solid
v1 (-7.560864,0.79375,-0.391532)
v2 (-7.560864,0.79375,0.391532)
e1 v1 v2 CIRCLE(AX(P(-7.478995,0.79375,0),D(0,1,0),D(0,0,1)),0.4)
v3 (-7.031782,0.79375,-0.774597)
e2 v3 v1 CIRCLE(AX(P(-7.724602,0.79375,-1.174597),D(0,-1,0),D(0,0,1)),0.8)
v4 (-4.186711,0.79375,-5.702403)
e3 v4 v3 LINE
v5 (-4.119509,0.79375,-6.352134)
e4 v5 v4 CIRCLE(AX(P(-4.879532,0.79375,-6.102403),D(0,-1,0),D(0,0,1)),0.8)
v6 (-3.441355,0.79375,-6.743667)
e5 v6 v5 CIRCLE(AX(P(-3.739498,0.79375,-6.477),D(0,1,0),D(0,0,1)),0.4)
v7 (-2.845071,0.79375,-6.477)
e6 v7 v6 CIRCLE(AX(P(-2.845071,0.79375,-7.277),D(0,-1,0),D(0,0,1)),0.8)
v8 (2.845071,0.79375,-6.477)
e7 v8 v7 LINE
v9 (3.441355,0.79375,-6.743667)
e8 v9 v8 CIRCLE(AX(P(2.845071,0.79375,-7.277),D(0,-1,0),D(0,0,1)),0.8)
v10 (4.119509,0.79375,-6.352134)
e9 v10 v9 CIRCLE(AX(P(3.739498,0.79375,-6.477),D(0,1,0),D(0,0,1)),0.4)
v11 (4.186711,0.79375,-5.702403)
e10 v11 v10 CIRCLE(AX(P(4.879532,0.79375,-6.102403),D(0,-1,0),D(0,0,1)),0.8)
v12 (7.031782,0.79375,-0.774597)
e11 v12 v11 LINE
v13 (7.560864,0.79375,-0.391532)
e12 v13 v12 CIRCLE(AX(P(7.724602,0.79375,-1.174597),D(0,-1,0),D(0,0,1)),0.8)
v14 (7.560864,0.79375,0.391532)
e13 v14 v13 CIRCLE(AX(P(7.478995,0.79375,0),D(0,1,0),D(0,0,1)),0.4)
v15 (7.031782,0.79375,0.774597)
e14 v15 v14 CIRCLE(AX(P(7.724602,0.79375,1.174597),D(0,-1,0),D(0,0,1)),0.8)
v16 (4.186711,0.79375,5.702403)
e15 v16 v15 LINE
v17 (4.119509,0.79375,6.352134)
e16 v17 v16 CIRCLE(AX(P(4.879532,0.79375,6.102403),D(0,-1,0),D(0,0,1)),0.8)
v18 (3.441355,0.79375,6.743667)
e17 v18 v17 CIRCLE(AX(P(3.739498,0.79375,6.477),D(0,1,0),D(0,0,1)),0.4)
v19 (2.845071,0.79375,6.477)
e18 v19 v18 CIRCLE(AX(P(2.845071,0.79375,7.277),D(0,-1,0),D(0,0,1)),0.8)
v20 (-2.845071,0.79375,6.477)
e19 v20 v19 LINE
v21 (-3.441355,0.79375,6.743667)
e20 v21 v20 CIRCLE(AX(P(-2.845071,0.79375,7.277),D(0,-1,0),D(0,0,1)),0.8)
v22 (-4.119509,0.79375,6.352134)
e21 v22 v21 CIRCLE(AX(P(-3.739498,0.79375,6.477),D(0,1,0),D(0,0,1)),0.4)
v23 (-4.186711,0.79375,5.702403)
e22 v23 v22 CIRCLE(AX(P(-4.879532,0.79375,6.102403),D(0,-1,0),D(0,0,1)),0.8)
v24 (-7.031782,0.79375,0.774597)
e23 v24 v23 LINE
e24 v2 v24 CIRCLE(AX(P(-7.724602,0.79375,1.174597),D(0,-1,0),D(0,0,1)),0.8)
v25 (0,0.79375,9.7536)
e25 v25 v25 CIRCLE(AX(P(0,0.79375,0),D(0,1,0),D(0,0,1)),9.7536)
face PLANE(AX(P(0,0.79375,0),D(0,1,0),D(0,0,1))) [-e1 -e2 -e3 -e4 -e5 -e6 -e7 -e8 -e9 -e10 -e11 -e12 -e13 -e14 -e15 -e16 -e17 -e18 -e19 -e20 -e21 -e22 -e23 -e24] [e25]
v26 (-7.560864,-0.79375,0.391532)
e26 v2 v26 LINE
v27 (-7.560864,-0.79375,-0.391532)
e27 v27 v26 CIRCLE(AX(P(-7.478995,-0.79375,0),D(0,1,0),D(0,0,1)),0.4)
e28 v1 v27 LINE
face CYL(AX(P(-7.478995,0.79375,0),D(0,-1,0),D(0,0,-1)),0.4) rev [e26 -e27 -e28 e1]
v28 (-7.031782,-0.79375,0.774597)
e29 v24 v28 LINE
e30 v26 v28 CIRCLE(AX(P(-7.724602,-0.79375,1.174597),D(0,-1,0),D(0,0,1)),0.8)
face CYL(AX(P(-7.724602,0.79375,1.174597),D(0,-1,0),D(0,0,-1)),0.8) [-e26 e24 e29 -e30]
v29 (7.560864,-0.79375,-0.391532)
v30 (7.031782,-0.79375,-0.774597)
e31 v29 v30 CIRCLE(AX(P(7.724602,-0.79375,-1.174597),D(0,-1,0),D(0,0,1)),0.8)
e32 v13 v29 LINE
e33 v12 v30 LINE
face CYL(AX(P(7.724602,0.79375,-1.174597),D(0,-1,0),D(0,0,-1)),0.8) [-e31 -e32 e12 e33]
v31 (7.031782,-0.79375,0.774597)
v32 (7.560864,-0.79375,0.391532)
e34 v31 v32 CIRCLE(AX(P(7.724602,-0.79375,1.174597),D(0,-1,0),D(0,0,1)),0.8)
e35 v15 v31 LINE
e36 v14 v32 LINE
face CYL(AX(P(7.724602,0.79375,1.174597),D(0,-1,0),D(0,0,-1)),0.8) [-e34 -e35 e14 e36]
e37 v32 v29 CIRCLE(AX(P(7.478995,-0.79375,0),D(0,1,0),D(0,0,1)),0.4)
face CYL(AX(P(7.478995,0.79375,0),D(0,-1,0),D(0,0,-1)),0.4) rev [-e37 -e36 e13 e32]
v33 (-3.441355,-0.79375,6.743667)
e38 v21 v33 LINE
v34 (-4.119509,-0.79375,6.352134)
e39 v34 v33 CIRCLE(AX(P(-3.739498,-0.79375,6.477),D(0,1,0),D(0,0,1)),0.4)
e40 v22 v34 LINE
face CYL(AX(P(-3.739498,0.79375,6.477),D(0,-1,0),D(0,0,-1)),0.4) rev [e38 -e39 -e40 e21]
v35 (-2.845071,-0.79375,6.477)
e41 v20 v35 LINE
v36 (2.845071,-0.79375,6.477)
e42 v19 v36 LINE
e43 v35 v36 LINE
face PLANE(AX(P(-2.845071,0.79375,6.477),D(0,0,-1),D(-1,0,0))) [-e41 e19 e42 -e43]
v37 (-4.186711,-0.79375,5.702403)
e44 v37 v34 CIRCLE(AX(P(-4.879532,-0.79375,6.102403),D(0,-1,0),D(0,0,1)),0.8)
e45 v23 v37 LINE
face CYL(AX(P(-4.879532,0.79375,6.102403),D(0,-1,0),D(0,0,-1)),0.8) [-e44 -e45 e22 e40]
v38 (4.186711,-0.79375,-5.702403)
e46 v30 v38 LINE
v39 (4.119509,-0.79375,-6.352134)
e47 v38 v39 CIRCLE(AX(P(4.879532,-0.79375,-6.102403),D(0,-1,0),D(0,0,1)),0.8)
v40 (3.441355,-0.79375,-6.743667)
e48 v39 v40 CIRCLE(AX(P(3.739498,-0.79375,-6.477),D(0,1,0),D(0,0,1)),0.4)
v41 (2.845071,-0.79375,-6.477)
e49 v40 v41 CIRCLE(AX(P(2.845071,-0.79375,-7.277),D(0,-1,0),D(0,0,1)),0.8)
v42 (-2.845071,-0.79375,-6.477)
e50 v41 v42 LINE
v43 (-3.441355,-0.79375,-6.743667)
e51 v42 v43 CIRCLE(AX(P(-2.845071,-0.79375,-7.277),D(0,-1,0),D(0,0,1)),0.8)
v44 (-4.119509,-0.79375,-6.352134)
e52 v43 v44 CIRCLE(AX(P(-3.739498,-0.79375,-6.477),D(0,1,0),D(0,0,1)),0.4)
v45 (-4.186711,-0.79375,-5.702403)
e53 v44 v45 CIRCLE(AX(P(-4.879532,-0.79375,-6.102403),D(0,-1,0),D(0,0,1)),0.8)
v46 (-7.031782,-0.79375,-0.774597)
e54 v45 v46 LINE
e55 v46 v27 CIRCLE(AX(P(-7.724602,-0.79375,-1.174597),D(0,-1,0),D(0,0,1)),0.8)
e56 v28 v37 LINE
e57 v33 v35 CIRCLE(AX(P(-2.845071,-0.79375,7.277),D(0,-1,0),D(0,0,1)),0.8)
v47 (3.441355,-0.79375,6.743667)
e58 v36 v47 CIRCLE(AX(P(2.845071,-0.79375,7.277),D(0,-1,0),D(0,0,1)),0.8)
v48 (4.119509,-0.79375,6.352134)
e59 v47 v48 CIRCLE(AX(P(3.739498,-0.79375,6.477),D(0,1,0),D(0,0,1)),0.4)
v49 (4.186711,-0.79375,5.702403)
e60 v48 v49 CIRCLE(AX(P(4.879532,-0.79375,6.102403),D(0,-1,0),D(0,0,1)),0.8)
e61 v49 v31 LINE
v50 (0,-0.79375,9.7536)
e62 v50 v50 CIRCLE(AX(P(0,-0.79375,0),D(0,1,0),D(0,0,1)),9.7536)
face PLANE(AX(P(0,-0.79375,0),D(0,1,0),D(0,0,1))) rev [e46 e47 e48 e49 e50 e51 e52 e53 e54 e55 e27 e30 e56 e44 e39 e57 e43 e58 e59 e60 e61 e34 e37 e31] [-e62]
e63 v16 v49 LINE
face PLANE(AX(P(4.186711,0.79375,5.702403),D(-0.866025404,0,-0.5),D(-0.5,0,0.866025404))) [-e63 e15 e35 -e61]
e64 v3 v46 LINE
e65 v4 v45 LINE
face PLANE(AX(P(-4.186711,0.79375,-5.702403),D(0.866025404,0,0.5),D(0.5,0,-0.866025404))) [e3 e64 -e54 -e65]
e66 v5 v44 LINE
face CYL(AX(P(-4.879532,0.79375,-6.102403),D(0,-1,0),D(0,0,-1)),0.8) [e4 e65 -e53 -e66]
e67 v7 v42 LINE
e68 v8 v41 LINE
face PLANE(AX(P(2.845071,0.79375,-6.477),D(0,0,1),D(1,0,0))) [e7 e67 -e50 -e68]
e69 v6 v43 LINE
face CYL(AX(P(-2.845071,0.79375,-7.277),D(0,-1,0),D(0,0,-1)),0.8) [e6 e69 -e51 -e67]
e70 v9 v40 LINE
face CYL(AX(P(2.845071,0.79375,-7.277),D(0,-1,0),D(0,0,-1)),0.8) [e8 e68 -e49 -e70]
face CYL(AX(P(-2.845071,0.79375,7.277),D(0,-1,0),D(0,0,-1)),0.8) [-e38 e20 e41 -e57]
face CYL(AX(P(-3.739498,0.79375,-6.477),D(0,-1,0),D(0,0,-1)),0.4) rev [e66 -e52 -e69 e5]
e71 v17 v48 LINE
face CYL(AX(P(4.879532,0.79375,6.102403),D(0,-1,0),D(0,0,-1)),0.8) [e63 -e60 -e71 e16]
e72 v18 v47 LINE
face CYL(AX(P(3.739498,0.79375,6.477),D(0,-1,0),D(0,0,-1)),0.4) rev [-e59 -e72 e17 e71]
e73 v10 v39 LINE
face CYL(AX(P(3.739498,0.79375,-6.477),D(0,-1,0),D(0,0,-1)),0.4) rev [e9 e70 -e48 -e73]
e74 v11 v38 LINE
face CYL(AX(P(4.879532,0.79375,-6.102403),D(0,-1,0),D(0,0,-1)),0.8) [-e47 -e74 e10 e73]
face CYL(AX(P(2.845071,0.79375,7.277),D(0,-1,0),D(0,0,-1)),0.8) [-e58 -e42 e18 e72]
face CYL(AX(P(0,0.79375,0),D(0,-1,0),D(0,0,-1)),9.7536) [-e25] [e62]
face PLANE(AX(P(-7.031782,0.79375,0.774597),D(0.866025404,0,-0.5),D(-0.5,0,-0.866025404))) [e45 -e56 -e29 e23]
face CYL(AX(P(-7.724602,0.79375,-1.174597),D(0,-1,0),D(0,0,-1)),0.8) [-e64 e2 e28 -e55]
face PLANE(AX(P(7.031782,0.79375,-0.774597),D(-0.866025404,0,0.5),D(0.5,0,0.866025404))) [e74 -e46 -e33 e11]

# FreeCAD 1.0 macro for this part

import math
import FreeCAD as App
import Part
import Sketcher
Q = App.Units.Quantity

doc = App.newDocument("Part")
params = doc.addObject("Spreadsheet::Sheet", "Params")
for row, (alias, value) in enumerate([
    ("sketch1_radius", "0.8 mm"),
    ("sketch1_radius2", "0.4 mm"),
    ("pad1_length", "1.5875 mm"),
], start=1):
    params.set(f"A{row}", alias)
    params.set(f"B{row}", "=" + value)
    params.setAlias(f"B{row}", alias)

body = doc.addObject("PartDesign::Body", "Body")

# Sketch on XZ plane
sketch1 = body.newObject("Sketcher::SketchObject", "Sketch")
sketch1.AttachmentSupport = (doc.getObject("XZ_Plane"), [""])
sketch1.MapMode = "FlatFace"
sketch1.addGeometry([
    Part.Circle(App.Vector(0, 0, 0), App.Vector(0, 0, 1), 9.75),  # 0
    Part.LineSegment(App.Vector(7.03, 0.77, 0), App.Vector(4.19, 5.7, 0)),  # 1
    Part.ArcOfCircle(Part.Circle(App.Vector(4.88, 6.1, 0), App.Vector(0, 0, 1), 0.8), math.radians(162), math.radians(210)),  # 2
    Part.ArcOfCircle(Part.Circle(App.Vector(3.74, 6.48, 0), App.Vector(0, 0, 1), 0.4), math.radians(-18), math.radians(138)),  # 3
    Part.ArcOfCircle(Part.Circle(App.Vector(2.85, 7.28, 0), App.Vector(0, 0, 1), 0.8), math.radians(-90), math.radians(-42)),  # 4
    Part.LineSegment(App.Vector(2.85, 6.48, 0), App.Vector(-2.85, 6.48, 0)),  # 5
    Part.ArcOfCircle(Part.Circle(App.Vector(-2.85, 7.28, 0), App.Vector(0, 0, 1), 0.8), math.radians(-138), math.radians(-90)),  # 6
    Part.ArcOfCircle(Part.Circle(App.Vector(-3.74, 6.48, 0), App.Vector(0, 0, 1), 0.4), math.radians(42), math.radians(198)),  # 7
    Part.ArcOfCircle(Part.Circle(App.Vector(-4.88, 6.1, 0), App.Vector(0, 0, 1), 0.8), math.radians(-30), math.radians(18)),  # 8
    Part.LineSegment(App.Vector(-4.19, 5.7, 0), App.Vector(-7.03, 0.77, 0)),  # 9
    Part.ArcOfCircle(Part.Circle(App.Vector(-7.72, 1.17, 0), App.Vector(0, 0, 1), 0.8), math.radians(-78), math.radians(-30)),  # 10
    Part.ArcOfCircle(Part.Circle(App.Vector(-7.48, 0, 0), App.Vector(0, 0, 1), 0.4), math.radians(102), math.radians(258)),  # 11
    Part.ArcOfCircle(Part.Circle(App.Vector(-7.72, -1.17, 0), App.Vector(0, 0, 1), 0.8), math.radians(30), math.radians(78)),  # 12
    Part.LineSegment(App.Vector(-7.03, -0.77, 0), App.Vector(-4.19, -5.7, 0)),  # 13
    Part.ArcOfCircle(Part.Circle(App.Vector(-4.88, -6.1, 0), App.Vector(0, 0, 1), 0.8), math.radians(-18), math.radians(30)),  # 14
    Part.ArcOfCircle(Part.Circle(App.Vector(-3.74, -6.48, 0), App.Vector(0, 0, 1), 0.4), math.radians(162), math.radians(318)),  # 15
    Part.ArcOfCircle(Part.Circle(App.Vector(-2.85, -7.28, 0), App.Vector(0, 0, 1), 0.8), math.radians(90), math.radians(138)),  # 16
    Part.LineSegment(App.Vector(-2.85, -6.48, 0), App.Vector(2.85, -6.48, 0)),  # 17
    Part.ArcOfCircle(Part.Circle(App.Vector(2.85, -7.28, 0), App.Vector(0, 0, 1), 0.8), math.radians(42), math.radians(90)),  # 18
    Part.ArcOfCircle(Part.Circle(App.Vector(3.74, -6.48, 0), App.Vector(0, 0, 1), 0.4), math.radians(-138), math.radians(18)),  # 19
    Part.ArcOfCircle(Part.Circle(App.Vector(4.88, -6.1, 0), App.Vector(0, 0, 1), 0.8), math.radians(150), math.radians(198)),  # 20
    Part.LineSegment(App.Vector(4.19, -5.7, 0), App.Vector(7.03, -0.77, 0)),  # 21
    Part.ArcOfCircle(Part.Circle(App.Vector(7.72, -1.17, 0), App.Vector(0, 0, 1), 0.8), math.radians(102), math.radians(150)),  # 22
    Part.ArcOfCircle(Part.Circle(App.Vector(7.48, 0, 0), App.Vector(0, 0, 1), 0.4), math.radians(-78), math.radians(78)),  # 23
    Part.ArcOfCircle(Part.Circle(App.Vector(7.72, 1.17, 0), App.Vector(0, 0, 1), 0.8), math.radians(-150), math.radians(-102)),  # 24
], False)
sketch1.addConstraint([
    Sketcher.Constraint("Tangent", 1, 2, 2, 2),
    Sketcher.Constraint("Tangent", 2, 1, 3, 1),
    Sketcher.Constraint("Tangent", 3, 2, 4, 2),
    Sketcher.Constraint("Tangent", 4, 1, 5, 1),
    Sketcher.Constraint("Tangent", 5, 2, 6, 2),
    Sketcher.Constraint("Tangent", 6, 1, 7, 1),
    Sketcher.Constraint("Tangent", 7, 2, 8, 2),
    Sketcher.Constraint("Tangent", 8, 1, 9, 1),
    Sketcher.Constraint("Tangent", 9, 2, 10, 2),
    Sketcher.Constraint("Tangent", 10, 1, 11, 1),
    Sketcher.Constraint("Tangent", 11, 2, 12, 2),
    Sketcher.Constraint("Tangent", 12, 1, 13, 1),
    Sketcher.Constraint("Tangent", 13, 2, 14, 2),
    Sketcher.Constraint("Tangent", 14, 1, 15, 1),
    Sketcher.Constraint("Tangent", 15, 2, 16, 2),
    Sketcher.Constraint("Tangent", 16, 1, 17, 1),
    Sketcher.Constraint("Tangent", 17, 2, 18, 2),
    Sketcher.Constraint("Tangent", 18, 1, 19, 1),
    Sketcher.Constraint("Tangent", 19, 2, 20, 2),
    Sketcher.Constraint("Tangent", 20, 1, 21, 1),
    Sketcher.Constraint("Tangent", 21, 2, 22, 2),
    Sketcher.Constraint("Tangent", 22, 1, 23, 1),
    Sketcher.Constraint("Tangent", 23, 2, 24, 2),
    Sketcher.Constraint("Tangent", 24, 1, 1, 1),
    Sketcher.Constraint("Horizontal", 5),
    Sketcher.Constraint("Horizontal", 17),
    Sketcher.Constraint("Coincident", 0, 3, -1, 1),
    Sketcher.Constraint("Equal", 2, 4),
    Sketcher.Constraint("Equal", 4, 6),
    Sketcher.Constraint("Equal", 3, 7),
    Sketcher.Constraint("Equal", 6, 8),
    Sketcher.Constraint("Equal", 8, 10),
    Sketcher.Constraint("Equal", 7, 11),
    Sketcher.Constraint("Equal", 10, 12),
    Sketcher.Constraint("Equal", 12, 14),
    Sketcher.Constraint("Equal", 11, 15),
    Sketcher.Constraint("Equal", 14, 16),
    Sketcher.Constraint("Equal", 16, 18),
    Sketcher.Constraint("Equal", 15, 19),
    Sketcher.Constraint("Equal", 18, 20),
    Sketcher.Constraint("Equal", 20, 22),
    Sketcher.Constraint("Equal", 19, 23),
    Sketcher.Constraint("Equal", 22, 24),
    Sketcher.Constraint("Symmetric", 2, 3, 14, 3, -1, 1),
    Sketcher.Constraint("Symmetric", 4, 3, 16, 3, -1, 1),
    Sketcher.Constraint("Symmetric", 7, 3, 19, 3, -1, 1),
    Sketcher.Constraint("Symmetric", 10, 3, 22, 3, -1, 1),
    Sketcher.Constraint("Symmetric", 12, 3, 24, 3, -1, 1),
    Sketcher.Constraint("Symmetric", 3, 3, 7, 3, -2),
    Sketcher.Constraint("Symmetric", 12, 3, 22, 3, -2),
    Sketcher.Constraint("Parallel", 9, 21),
    Sketcher.Constraint("Horizontal", 2, 3, 8, 3),
    Sketcher.Constraint("Horizontal", 7, 3, 4, 1),
    Sketcher.Constraint("Radius", 2, 0.8),
    Sketcher.Constraint("Radius", 3, 0.4),
    Sketcher.Constraint("Angle", 1, Q("120 deg")),
    Sketcher.Constraint("Diameter", 0, 19.5072),
    Sketcher.Constraint("DistanceY", -1, 1, 3, 3, 6.477),
    Sketcher.Constraint("DistanceY", 12, 3, 8, 3, 7.277),
    Sketcher.Constraint("DistanceX", 5, 2, 5, 1, 5.690141),
    Sketcher.Constraint("Distance", 1, 5.690141),
])
sketch1.setExpression("Constraints[53]", "Params.sketch1_radius")
sketch1.setExpression("Constraints[54]", "Params.sketch1_radius2")
pad1 = body.newObject("PartDesign::Pad", "Pad")
pad1.Profile = sketch1
pad1.setExpression("Length", "Params.pad1_length")
pad1.Midplane = True

doc.recompute()
